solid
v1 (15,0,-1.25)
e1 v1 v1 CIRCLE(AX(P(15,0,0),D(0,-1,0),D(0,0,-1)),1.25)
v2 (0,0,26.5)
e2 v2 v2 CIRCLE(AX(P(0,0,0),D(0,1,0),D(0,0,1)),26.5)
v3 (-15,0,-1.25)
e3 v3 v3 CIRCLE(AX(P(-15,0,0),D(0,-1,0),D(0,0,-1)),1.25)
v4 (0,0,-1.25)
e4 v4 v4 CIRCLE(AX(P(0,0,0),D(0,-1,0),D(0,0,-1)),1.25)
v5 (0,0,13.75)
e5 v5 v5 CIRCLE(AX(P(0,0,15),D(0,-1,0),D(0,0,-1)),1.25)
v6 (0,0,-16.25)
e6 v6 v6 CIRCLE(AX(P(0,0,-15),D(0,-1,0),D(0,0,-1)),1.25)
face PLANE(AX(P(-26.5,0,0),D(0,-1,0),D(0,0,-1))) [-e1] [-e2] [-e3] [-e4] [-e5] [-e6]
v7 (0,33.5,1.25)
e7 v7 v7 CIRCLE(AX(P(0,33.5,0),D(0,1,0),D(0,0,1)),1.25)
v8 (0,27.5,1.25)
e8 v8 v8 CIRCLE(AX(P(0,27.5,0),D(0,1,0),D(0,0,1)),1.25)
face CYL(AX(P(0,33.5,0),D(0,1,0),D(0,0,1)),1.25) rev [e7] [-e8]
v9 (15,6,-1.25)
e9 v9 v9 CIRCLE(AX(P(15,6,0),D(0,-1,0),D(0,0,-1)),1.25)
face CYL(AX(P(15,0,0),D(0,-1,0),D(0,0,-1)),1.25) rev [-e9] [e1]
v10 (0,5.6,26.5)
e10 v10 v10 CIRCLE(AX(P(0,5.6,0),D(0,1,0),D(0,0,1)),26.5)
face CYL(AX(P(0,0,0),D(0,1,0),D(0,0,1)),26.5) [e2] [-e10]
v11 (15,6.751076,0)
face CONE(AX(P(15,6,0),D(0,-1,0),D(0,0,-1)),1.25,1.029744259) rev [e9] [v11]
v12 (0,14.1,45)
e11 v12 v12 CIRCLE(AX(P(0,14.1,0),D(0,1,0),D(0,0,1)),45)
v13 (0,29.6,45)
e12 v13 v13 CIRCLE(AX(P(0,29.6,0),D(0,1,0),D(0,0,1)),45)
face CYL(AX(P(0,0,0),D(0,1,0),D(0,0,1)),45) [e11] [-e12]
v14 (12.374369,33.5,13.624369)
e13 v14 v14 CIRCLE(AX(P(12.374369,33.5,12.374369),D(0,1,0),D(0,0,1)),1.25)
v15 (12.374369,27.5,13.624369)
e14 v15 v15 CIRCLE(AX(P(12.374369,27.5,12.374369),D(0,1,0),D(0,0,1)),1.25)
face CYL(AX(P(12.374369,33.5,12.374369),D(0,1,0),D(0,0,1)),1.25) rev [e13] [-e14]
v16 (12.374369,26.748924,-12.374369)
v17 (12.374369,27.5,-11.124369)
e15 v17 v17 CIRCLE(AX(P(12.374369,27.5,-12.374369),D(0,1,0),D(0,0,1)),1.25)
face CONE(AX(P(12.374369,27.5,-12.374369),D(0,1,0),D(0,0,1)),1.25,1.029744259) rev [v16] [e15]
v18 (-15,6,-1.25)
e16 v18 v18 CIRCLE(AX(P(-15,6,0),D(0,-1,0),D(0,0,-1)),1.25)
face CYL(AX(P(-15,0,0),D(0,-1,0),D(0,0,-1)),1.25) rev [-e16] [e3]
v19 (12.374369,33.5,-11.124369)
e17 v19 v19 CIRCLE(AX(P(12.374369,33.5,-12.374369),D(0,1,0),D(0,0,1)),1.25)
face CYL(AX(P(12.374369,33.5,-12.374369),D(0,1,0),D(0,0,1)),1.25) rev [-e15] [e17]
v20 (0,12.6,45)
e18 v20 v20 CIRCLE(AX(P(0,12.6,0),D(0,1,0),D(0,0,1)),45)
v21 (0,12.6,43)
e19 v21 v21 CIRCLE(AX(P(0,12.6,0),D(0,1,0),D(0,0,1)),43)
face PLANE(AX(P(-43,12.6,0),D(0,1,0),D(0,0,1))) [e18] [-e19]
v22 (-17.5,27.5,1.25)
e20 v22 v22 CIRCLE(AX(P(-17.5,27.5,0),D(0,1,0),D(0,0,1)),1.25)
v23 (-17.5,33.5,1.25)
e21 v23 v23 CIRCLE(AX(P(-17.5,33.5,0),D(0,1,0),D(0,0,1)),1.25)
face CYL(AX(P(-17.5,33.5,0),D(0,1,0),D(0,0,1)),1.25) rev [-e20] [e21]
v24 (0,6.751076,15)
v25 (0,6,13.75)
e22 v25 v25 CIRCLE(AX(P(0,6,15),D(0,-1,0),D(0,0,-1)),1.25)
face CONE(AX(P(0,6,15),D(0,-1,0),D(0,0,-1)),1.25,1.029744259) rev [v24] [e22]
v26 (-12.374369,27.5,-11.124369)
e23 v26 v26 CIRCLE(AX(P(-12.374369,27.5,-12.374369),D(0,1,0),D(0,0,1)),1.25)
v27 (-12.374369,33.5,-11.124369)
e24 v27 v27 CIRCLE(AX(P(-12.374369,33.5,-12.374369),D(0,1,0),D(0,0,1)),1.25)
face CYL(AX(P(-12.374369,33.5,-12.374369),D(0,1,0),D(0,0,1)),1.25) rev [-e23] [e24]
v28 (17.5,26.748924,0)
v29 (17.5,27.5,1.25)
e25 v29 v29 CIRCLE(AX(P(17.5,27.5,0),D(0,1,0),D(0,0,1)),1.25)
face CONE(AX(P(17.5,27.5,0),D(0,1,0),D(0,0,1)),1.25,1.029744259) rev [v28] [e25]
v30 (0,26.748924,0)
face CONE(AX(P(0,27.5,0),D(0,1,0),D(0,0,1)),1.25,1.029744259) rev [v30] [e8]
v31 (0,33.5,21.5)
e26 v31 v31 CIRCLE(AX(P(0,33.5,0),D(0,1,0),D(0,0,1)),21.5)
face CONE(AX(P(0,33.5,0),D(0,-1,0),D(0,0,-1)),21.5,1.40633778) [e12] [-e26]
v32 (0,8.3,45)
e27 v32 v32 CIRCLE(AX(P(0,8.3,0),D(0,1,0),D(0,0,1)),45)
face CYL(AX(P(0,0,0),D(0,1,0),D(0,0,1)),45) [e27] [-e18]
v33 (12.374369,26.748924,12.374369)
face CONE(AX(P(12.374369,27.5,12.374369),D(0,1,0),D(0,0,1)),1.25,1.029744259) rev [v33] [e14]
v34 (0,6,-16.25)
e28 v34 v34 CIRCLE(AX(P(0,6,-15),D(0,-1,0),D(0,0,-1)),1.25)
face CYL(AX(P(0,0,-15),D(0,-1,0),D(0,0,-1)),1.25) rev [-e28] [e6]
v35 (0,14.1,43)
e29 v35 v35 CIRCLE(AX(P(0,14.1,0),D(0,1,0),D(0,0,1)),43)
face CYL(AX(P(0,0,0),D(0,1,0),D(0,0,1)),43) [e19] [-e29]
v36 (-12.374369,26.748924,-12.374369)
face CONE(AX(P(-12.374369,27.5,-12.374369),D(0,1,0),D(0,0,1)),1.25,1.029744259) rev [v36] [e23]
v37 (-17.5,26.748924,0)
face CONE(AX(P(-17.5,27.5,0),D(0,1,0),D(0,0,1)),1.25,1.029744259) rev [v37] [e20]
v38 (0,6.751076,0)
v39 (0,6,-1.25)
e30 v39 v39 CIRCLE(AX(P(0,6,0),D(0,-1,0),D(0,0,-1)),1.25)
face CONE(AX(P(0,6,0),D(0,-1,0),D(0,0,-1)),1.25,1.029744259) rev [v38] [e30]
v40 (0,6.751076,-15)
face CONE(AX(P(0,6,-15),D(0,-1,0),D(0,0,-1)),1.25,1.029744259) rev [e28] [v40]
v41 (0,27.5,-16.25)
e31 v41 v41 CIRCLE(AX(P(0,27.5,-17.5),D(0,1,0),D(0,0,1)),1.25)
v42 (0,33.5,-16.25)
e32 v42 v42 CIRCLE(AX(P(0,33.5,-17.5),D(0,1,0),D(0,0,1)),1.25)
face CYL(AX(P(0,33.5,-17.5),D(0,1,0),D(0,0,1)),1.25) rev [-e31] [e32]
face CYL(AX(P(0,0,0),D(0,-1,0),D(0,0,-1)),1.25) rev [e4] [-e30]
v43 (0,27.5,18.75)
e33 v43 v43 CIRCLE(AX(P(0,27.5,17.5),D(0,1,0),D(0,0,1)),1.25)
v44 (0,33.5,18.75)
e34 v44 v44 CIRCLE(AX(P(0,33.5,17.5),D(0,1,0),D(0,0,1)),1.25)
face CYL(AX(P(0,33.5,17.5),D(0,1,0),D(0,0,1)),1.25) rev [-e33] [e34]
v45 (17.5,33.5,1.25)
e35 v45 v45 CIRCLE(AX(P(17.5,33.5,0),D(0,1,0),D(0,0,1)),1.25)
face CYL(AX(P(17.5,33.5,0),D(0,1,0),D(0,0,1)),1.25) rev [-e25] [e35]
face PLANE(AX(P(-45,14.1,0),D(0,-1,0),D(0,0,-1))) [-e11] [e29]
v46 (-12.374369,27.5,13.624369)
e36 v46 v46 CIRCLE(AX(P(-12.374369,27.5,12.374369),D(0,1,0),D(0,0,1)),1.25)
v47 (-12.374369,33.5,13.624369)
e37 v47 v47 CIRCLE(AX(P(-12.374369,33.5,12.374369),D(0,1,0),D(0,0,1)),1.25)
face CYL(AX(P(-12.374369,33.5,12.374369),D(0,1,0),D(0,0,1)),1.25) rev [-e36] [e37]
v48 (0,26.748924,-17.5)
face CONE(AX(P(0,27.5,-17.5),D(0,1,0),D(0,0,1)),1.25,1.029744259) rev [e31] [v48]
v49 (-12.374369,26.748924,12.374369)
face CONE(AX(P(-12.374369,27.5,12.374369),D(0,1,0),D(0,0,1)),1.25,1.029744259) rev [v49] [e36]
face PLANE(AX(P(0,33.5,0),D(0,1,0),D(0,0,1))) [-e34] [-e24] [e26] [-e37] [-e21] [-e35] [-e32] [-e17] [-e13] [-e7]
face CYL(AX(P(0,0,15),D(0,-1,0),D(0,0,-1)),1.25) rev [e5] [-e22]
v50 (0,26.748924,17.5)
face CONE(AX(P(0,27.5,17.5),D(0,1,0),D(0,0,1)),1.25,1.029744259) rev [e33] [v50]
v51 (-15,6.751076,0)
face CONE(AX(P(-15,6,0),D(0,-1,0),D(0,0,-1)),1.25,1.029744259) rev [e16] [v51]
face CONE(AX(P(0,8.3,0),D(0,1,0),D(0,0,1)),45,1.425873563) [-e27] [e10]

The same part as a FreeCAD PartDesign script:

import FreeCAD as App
import Part
import Sketcher

V = App.Vector
Q = App.Units.Quantity


def add_polygon(sketch, points):
    """Adds a closed chain of lines whose ends are joined by coincident constraints."""
    first, n = sketch.GeometryCount, len(points)
    for a, b in zip(points, points[1:] + points[:1]):
        sketch.addGeometry(Part.LineSegment(App.Vector(*a, 0), App.Vector(*b, 0)), False)
    for i in range(n):
        sketch.addConstraint(Sketcher.Constraint("Coincident", first + i, 2, first + (i + 1) % n, 1))

doc = App.newDocument("Part")
body = doc.addObject("PartDesign::Body", "Body")

sketch1 = doc.addObject("Sketcher::SketchObject", "Sketch")
body.addObject(sketch1)
sketch1.AttachmentSupport = (doc.XY_Plane, [""])
sketch1.MapMode = "FlatFace"
add_polygon(sketch1, [(0, 0), (0, 33.5), (-21.5, 33.5), (-45, 29.6), (-45, 14.1), (-43, 14.1), (-43, 12.6), (-45, 12.6), (-45, 8.3), (-26.5, 5.6), (-26.5, 0)])
sketch1.addConstraint(Sketcher.Constraint("Vertical", 0))
sketch1.addConstraint(Sketcher.Constraint("Horizontal", 1))
sketch1.addConstraint(Sketcher.Constraint("Vertical", 3))
sketch1.addConstraint(Sketcher.Constraint("Horizontal", 4))
sketch1.addConstraint(Sketcher.Constraint("Vertical", 5))
sketch1.addConstraint(Sketcher.Constraint("Horizontal", 6))
sketch1.addConstraint(Sketcher.Constraint("Vertical", 7))
sketch1.addConstraint(Sketcher.Constraint("Vertical", 9))
sketch1.addConstraint(Sketcher.Constraint("Horizontal", 10))
sketch1.addConstraint(Sketcher.Constraint("Coincident", 10, 2, -1, 1))
sketch1.addConstraint(Sketcher.Constraint("Vertical", 3, 2, 6, 2))
sketch1.addConstraint(Sketcher.Constraint("DistanceX", 4, 1, 4, 2, Q("2 mm")))
sketch1.addConstraint(Sketcher.Constraint("DistanceX", 1, 2, 1, 1, Q("21.5 mm")))
sketch1.addConstraint(Sketcher.Constraint("DistanceX", 10, 1, 10, 2, Q("26.5 mm")))
sketch1.addConstraint(Sketcher.Constraint("DistanceY", 0, 1, 0, 2, Q("33.5 mm")))
sketch1.addConstraint(Sketcher.Constraint("DistanceY", 3, 2, 3, 1, Q("15.5 mm")))
sketch1.addConstraint(Sketcher.Constraint("DistanceY", 5, 2, 5, 1, Q("1.5 mm")))
sketch1.addConstraint(Sketcher.Constraint("DistanceY", 7, 2, 7, 1, Q("4.3 mm")))
sketch1.addConstraint(Sketcher.Constraint("DistanceY", 9, 2, 9, 1, Q("5.6 mm")))
sketch1.addConstraint(Sketcher.Constraint("DistanceX", 2, 2, -1, 1, Q("45 mm")))
sketch1.addConstraint(Sketcher.Constraint("DistanceY", 8, 2, 5, 2, Q("7 mm")))
revolution = doc.addObject("PartDesign::Revolution", "Revolution")
body.addObject(revolution)
revolution.Profile = sketch1
revolution.ReferenceAxis = (sketch1, ["V_Axis"])
revolution.Angle = 360

sketch2 = doc.addObject("Sketcher::SketchObject", "Sketch001")
body.addObject(sketch2)
sketch2.AttachmentSupport = (doc.XZ_Plane, [""])
sketch2.MapMode = "FlatFace"
sketch2.AttachmentOffset = App.Placement(V(0, 0, -33.5), App.Rotation())
sketch2.addGeometry(Part.Circle(V(0, -17.5, 0), V(0, 0, 1), 1.25), False)
sketch2.addGeometry(Part.Circle(V(12.374369, -12.374369, 0), V(0, 0, 1), 1.25), False)
sketch2.addGeometry(Part.Circle(V(17.5, 0, 0), V(0, 0, 1), 1.25), False)
sketch2.addGeometry(Part.Circle(V(12.374369, 12.374369, 0), V(0, 0, 1), 1.25), False)
sketch2.addGeometry(Part.Circle(V(0, 17.5, 0), V(0, 0, 1), 1.25), False)
sketch2.addGeometry(Part.Circle(V(-12.374369, 12.374369, 0), V(0, 0, 1), 1.25), False)
sketch2.addGeometry(Part.Circle(V(-17.5, 0, 0), V(0, 0, 1), 1.25), False)
sketch2.addGeometry(Part.Circle(V(-12.374369, -12.374369, 0), V(0, 0, 1), 1.25), False)
sketch2.addGeometry(Part.Circle(V(0, 0, 0), V(0, 0, 1), 1.25), False)
sketch2.addConstraint(Sketcher.Constraint("Coincident", 8, 3, -1, 1))
sketch2.addConstraint(Sketcher.Constraint("Equal", 0, 1))
sketch2.addConstraint(Sketcher.Constraint("Equal", 1, 2))
sketch2.addConstraint(Sketcher.Constraint("Equal", 2, 3))
sketch2.addConstraint(Sketcher.Constraint("Equal", 3, 4))
sketch2.addConstraint(Sketcher.Constraint("Equal", 4, 5))
sketch2.addConstraint(Sketcher.Constraint("Equal", 5, 6))
sketch2.addConstraint(Sketcher.Constraint("Equal", 6, 7))
sketch2.addConstraint(Sketcher.Constraint("Equal", 7, 8))
sketch2.addConstraint(Sketcher.Constraint("Symmetric", 0, 3, 4, 3, -1, 1))
sketch2.addConstraint(Sketcher.Constraint("Symmetric", 1, 3, 5, 3, -1, 1))
sketch2.addConstraint(Sketcher.Constraint("Symmetric", 2, 3, 6, 3, -1, 1))
sketch2.addConstraint(Sketcher.Constraint("Symmetric", 3, 3, 7, 3, -1, 1))
sketch2.addConstraint(Sketcher.Constraint("Symmetric", 3, 3, 5, 3, -2))
sketch2.addConstraint(Sketcher.Constraint("PointOnObject", 0, 3, -2))
sketch2.addConstraint(Sketcher.Constraint("PointOnObject", 2, 3, -1))
sketch2.addConstraint(Sketcher.Constraint("Diameter", 0, Q("2.5 mm")))
sketch2.addConstraint(Sketcher.Constraint("DistanceY", 0, 3, 4, 3, Q("35 mm")))
sketch2.addConstraint(Sketcher.Constraint("DistanceX", -1, 1, 2, 3, Q("17.5 mm")))
sketch2.addConstraint(Sketcher.Constraint("DistanceX", -1, 1, 1, 3, Q("12.374369 mm")))
sketch2.addConstraint(Sketcher.Constraint("DistanceY", 1, 3, -1, 1, Q("12.374369 mm")))
doc.recompute()
hole = doc.addObject("PartDesign::Hole", "Hole")
body.addObject(hole)
hole.Profile = sketch2
hole.ThreadType = "None"
hole.Diameter = 2.5
hole.DepthType = "Dimension"
hole.Depth = 6
hole.DrillPoint = "Angled"
hole.DrillPointAngle = 118
hole.Reversed = True

sketch3 = doc.addObject("Sketcher::SketchObject", "Sketch002")
body.addObject(sketch3)
sketch3.AttachmentSupport = (doc.XZ_Plane, [""])
sketch3.MapMode = "FlatFace"
sketch3.addGeometry(Part.Circle(V(0, -15, 0), V(0, 0, 1), 1.25), False)
sketch3.addGeometry(Part.Circle(V(-15, 0, 0), V(0, 0, 1), 1.25), False)
sketch3.addGeometry(Part.Circle(V(0, 15, 0), V(0, 0, 1), 1.25), False)
sketch3.addGeometry(Part.Circle(V(15, 0, 0), V(0, 0, 1), 1.25), False)
sketch3.addGeometry(Part.Circle(V(0, 0, 0), V(0, 0, 1), 1.25), False)
sketch3.addConstraint(Sketcher.Constraint("Coincident", 4, 3, -1, 1))
sketch3.addConstraint(Sketcher.Constraint("Equal", 0, 1))
sketch3.addConstraint(Sketcher.Constraint("Equal", 1, 2))
sketch3.addConstraint(Sketcher.Constraint("Equal", 2, 3))
sketch3.addConstraint(Sketcher.Constraint("Equal", 3, 4))
sketch3.addConstraint(Sketcher.Constraint("Symmetric", 0, 3, 2, 3, -1, 1))
sketch3.addConstraint(Sketcher.Constraint("Symmetric", 1, 3, 3, 3, -1, 1))
sketch3.addConstraint(Sketcher.Constraint("PointOnObject", 0, 3, -2))
sketch3.addConstraint(Sketcher.Constraint("PointOnObject", 1, 3, -1))
sketch3.addConstraint(Sketcher.Constraint("Diameter", 0, Q("2.5 mm")))
sketch3.addConstraint(Sketcher.Constraint("DistanceY", 0, 3, -1, 1, Q("15 mm")))
sketch3.addConstraint(Sketcher.Constraint("DistanceX", 1, 3, -1, 1, Q("15 mm")))
doc.recompute()
hole2 = doc.addObject("PartDesign::Hole", "Hole001")
body.addObject(hole2)
hole2.Profile = sketch3
hole2.ThreadType = "None"
hole2.Diameter = 2.5
hole2.DepthType = "Dimension"
hole2.Depth = 6
hole2.DrillPoint = "Angled"
hole2.DrillPointAngle = 118

doc.recompute()
